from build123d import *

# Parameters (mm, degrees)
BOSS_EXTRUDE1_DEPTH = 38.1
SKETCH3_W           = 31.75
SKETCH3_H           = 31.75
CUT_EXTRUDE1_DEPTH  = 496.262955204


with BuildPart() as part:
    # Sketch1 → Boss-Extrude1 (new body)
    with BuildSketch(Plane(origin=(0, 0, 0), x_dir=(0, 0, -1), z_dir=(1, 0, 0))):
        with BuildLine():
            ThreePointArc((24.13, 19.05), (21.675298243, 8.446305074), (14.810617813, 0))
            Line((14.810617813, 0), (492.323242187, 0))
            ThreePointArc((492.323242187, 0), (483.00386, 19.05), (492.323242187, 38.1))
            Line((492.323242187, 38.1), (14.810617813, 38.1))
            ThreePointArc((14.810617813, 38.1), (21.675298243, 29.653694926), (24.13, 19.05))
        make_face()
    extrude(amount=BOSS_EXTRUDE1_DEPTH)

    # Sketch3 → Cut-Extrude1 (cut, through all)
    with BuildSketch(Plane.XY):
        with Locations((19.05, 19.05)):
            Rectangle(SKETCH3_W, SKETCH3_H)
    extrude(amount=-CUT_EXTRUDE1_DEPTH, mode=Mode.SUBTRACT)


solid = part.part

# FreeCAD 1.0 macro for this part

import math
import FreeCAD as App
import Part
import Sketcher
from FreeCAD import Vector
Q = App.Units.Quantity


def add_polygon(sketch, points):
    """Adds a closed chain of lines whose ends are joined by coincident constraints."""
    first, n = sketch.GeometryCount, len(points)
    for a, b in zip(points, points[1:] + points[:1]):
        sketch.addGeometry(Part.LineSegment(App.Vector(*a, 0), App.Vector(*b, 0)), False)
    for i in range(n):
        sketch.addConstraint(Sketcher.Constraint("Coincident", first + i, 2, first + (i + 1) % n, 1))

doc = App.newDocument("Part")
body = doc.addObject("PartDesign::Body", "Body")

# Sketch on YZ plane
sketch1 = doc.addObject("Sketcher::SketchObject", "Sketch")
body.addObject(sketch1)
sketch1.AttachmentSupport = (doc.YZ_Plane, [""])
sketch1.MapMode = "FlatFace"
sketch1.addGeometry(Part.ArcOfCircle(Part.Circle(Vector(19, 0, 0), Vector(0, 0, 1), 24), math.radians(-142), math.radians(-90)), False)
sketch1.addGeometry(Part.LineSegment(Vector(0, -15, 0), Vector(0, -492, 0)), False)
sketch1.addGeometry(Part.ArcOfCircle(Part.Circle(Vector(19, -507, 0), Vector(0, 0, 1), 24), math.radians(38), math.radians(142)), False)
sketch1.addGeometry(Part.LineSegment(Vector(38, -492, 0), Vector(38, -15, 0)), False)
sketch1.addGeometry(Part.ArcOfCircle(Part.Circle(Vector(19, 0, 0), Vector(0, 0, 1), 24), math.radians(-90), math.radians(-38)), False)
sketch1.addConstraint(Sketcher.Constraint("Coincident", 0, 1, 1, 1))
sketch1.addConstraint(Sketcher.Constraint("Coincident", 1, 2, 2, 2))
sketch1.addConstraint(Sketcher.Constraint("Coincident", 2, 1, 3, 1))
sketch1.addConstraint(Sketcher.Constraint("Coincident", 3, 2, 4, 2))
sketch1.addConstraint(Sketcher.Constraint("Tangent", 4, 1, 0, 2))
sketch1.addConstraint(Sketcher.Constraint("Vertical", 1))
sketch1.addConstraint(Sketcher.Constraint("Vertical", 3))
sketch1.addConstraint(Sketcher.Constraint("Equal", 0, 2))
sketch1.addConstraint(Sketcher.Constraint("Equal", 2, 4))
sketch1.addConstraint(Sketcher.Constraint("PointOnObject", 0, 3, -1))
sketch1.addConstraint(Sketcher.Constraint("PointOnObject", 0, 1, -2))
sketch1.addConstraint(Sketcher.Constraint("Horizontal", 1, 2, 2, 1))
sketch1.addConstraint(Sketcher.Constraint("Horizontal", 0, 1, 3, 2))
sketch1.addConstraint(Sketcher.Constraint("Vertical", 2, 3, 4, 1))
sketch1.addConstraint(Sketcher.Constraint("Radius", 0, Q("0.95 in")))
sketch1.addConstraint(Sketcher.Constraint("DistanceX", -1, 1, 2, 1, Q("1.5 in")))
sketch1.addConstraint(Sketcher.Constraint("DistanceY", 2, 3, -1, 1, Q("19.9659 in")))
pad1 = doc.addObject("PartDesign::Pad", "Pad")
body.addObject(pad1)
pad1.Profile = sketch1
pad1.Length = Q("1.5 in")

# Sketch on XY plane
sketch2 = doc.addObject("Sketcher::SketchObject", "Sketch001")
body.addObject(sketch2)
sketch2.AttachmentSupport = (doc.XY_Plane, [""])
sketch2.MapMode = "FlatFace"
add_polygon(sketch2, [(3, 35), (3, 3), (35, 3), (35, 35)])  # lines 0-3
sketch2.addConstraint(Sketcher.Constraint("Vertical", 0))
sketch2.addConstraint(Sketcher.Constraint("Horizontal", 1))
sketch2.addConstraint(Sketcher.Constraint("Vertical", 2))
sketch2.addConstraint(Sketcher.Constraint("Horizontal", 3))
sketch2.addConstraint(Sketcher.Constraint("Equal", 3, 0))
sketch2.addConstraint(Sketcher.Constraint("DistanceX", 1, 1, 1, 2, Q("1.25 in")))
sketch2.addConstraint(Sketcher.Constraint("DistanceX", -1, 1, 0, 2, Q("0.125 in")))
sketch2.addConstraint(Sketcher.Constraint("DistanceY", -1, 1, 0, 2, Q("0.125 in")))
pocket1 = doc.addObject("PartDesign::Pocket", "Pocket")
body.addObject(pocket1)
pocket1.Profile = sketch2
pocket1.Type = "ThroughAll"

doc.recompute()
